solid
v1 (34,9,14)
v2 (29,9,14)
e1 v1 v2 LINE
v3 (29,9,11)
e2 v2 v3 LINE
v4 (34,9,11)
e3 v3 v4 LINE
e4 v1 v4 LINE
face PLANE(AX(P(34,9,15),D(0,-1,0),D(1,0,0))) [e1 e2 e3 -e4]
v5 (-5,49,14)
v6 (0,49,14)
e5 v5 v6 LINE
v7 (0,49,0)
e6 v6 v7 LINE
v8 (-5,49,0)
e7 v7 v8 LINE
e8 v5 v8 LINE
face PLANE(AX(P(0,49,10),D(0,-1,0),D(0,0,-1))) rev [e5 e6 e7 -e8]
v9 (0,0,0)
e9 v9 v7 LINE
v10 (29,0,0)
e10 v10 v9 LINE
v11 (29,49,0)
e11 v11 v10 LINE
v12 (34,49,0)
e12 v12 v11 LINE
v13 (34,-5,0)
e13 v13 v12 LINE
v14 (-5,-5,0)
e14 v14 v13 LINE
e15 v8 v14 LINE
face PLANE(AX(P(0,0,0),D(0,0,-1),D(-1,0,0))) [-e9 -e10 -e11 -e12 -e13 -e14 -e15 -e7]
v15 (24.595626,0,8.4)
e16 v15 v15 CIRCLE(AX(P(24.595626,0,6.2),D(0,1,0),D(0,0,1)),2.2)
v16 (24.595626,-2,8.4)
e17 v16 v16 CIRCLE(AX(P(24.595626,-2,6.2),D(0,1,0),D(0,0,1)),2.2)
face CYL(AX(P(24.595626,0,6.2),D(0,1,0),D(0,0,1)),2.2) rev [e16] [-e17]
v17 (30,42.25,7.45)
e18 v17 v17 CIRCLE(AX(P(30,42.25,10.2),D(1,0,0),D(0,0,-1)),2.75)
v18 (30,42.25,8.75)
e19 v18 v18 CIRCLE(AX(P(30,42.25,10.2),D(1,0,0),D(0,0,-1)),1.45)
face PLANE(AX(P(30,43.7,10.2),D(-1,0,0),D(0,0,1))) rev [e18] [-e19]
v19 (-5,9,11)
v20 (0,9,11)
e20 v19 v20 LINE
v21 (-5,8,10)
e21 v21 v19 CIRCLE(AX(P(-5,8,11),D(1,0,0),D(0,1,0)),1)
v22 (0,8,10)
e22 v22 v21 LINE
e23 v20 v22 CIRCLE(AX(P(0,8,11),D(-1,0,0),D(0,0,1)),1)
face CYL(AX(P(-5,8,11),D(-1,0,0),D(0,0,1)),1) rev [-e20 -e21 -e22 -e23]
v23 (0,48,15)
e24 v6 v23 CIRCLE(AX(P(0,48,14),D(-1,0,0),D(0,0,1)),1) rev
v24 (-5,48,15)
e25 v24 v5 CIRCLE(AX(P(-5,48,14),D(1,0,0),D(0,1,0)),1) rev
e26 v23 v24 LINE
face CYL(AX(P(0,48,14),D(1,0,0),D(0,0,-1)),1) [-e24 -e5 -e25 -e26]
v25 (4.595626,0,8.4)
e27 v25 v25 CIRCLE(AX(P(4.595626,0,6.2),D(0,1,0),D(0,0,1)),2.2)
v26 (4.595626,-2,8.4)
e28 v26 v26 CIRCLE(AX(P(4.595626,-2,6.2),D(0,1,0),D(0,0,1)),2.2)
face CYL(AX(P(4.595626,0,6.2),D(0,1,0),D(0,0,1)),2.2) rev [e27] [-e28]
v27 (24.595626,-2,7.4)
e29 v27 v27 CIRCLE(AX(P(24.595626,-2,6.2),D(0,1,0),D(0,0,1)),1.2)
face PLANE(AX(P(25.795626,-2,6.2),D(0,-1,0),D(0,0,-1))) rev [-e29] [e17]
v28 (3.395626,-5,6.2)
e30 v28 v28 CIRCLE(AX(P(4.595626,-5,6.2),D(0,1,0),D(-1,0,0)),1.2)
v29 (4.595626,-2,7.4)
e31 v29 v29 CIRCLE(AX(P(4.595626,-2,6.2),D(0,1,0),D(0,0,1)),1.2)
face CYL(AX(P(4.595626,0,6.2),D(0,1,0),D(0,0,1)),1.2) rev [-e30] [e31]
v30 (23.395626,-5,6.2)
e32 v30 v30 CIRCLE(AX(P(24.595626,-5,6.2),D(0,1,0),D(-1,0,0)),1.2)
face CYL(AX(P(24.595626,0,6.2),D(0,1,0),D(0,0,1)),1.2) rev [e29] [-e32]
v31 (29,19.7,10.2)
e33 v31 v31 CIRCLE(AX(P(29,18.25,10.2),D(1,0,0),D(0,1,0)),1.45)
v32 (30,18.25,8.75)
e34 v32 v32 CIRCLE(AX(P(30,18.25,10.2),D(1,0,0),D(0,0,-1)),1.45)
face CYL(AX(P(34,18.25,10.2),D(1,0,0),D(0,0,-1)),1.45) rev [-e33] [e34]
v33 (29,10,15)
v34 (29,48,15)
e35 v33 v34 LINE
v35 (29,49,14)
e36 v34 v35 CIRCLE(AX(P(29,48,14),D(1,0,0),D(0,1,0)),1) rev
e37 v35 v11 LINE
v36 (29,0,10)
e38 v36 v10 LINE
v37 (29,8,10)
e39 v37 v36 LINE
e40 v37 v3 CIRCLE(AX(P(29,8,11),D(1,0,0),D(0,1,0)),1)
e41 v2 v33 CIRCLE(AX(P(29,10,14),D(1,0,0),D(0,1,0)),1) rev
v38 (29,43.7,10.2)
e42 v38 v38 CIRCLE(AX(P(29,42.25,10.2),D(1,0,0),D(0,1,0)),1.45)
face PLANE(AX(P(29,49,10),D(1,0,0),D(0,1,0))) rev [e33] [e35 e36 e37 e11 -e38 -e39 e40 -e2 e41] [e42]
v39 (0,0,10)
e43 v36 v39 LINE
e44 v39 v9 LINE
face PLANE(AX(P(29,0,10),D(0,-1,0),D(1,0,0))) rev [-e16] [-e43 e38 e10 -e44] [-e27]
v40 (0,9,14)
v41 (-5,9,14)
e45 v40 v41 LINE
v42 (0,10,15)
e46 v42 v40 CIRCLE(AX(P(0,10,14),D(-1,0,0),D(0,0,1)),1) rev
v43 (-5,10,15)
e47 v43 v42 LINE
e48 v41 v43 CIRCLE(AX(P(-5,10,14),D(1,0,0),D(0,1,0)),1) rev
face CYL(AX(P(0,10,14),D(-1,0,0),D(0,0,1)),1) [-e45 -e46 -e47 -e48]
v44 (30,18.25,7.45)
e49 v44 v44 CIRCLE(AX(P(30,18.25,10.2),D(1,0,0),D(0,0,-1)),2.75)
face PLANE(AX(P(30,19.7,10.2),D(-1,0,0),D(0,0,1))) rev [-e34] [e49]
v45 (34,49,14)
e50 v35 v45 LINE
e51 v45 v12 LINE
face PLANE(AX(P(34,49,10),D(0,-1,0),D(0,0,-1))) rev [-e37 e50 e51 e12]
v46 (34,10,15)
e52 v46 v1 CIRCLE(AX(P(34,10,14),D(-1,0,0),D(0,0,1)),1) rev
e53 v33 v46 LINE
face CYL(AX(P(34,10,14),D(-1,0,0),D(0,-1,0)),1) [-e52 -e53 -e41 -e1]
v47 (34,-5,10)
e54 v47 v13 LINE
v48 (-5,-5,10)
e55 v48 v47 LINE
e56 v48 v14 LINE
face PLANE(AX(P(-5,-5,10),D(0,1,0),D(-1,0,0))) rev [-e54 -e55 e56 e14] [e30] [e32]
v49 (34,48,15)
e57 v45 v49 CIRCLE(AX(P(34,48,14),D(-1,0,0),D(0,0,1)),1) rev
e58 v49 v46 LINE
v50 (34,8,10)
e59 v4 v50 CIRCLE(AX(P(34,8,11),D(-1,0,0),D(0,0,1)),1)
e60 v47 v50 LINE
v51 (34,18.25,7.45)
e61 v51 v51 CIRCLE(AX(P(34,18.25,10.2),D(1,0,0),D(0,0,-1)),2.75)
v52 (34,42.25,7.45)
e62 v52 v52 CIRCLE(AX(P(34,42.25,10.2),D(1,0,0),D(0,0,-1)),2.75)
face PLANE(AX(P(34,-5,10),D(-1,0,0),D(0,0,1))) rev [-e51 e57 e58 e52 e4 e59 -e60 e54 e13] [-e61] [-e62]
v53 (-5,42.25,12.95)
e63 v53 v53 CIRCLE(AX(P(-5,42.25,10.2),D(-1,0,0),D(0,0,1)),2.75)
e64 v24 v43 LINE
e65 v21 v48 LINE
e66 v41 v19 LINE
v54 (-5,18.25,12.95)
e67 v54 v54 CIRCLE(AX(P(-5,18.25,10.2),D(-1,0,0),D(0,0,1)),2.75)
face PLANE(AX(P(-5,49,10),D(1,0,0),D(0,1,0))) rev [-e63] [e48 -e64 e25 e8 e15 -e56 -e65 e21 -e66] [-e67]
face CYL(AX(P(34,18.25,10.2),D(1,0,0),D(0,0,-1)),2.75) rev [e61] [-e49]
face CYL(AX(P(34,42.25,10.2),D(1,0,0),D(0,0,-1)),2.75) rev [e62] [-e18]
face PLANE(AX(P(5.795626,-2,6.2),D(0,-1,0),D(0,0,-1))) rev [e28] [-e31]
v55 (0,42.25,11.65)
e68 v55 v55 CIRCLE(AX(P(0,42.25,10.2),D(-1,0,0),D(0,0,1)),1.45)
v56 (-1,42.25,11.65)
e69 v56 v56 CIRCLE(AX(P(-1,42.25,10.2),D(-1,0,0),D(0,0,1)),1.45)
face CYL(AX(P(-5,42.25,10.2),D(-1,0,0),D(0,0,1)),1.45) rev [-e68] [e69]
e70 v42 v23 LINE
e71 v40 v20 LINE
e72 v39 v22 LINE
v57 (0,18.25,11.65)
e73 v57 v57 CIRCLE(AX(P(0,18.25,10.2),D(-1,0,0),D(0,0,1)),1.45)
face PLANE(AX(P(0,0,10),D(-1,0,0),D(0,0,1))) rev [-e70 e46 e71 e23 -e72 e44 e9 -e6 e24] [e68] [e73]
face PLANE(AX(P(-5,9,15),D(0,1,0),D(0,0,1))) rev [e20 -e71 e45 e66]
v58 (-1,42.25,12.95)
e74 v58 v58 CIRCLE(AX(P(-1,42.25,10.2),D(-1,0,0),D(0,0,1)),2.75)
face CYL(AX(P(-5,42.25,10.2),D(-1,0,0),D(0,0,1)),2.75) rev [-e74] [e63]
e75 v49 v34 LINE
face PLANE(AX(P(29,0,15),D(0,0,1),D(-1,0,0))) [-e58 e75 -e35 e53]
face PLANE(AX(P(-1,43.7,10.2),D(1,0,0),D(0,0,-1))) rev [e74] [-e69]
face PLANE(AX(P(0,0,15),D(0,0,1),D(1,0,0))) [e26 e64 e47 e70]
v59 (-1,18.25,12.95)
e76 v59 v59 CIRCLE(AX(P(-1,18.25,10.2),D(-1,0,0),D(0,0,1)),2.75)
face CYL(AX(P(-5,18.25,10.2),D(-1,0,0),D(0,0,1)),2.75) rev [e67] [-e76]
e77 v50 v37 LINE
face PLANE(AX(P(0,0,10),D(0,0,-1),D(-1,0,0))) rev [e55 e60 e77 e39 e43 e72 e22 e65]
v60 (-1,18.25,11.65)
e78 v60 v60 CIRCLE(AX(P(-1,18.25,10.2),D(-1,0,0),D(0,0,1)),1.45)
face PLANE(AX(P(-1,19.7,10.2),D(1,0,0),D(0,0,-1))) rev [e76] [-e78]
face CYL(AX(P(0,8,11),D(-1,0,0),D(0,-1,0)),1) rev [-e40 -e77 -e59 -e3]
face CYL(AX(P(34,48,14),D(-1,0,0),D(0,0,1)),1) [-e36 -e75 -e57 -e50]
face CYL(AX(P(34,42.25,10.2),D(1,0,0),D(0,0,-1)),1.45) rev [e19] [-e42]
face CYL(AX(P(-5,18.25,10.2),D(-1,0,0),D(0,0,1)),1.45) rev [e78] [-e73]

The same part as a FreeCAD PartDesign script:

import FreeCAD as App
import Part
import Sketcher
from FreeCAD import Vector
Q = App.Units.Quantity


def edges_at(feature, points):
    """Names of the edges that pass closest to the given points."""
    edges = feature.Shape.Edges
    near = lambda p: min(range(len(edges)), key=lambda i: edges[i].distToShape(Part.Vertex(*p))[0])
    return sorted({f"Edge{near(p) + 1}" for p in points})

doc = App.newDocument("Part")
body = doc.addObject("PartDesign::Body", "Body")

sketch1 = body.newObject("Sketcher::SketchObject", "Sketch")
sketch1.AttachmentSupport = (doc.getObject("XY_Plane"), [""])
sketch1.MapMode = "FlatFace"
sketch1.addGeometry(Part.LineSegment(Vector(0, 0, 0), Vector(0, 49, 0)), False)
sketch1.addGeometry(Part.LineSegment(Vector(0, 49, 0), Vector(-5, 49, 0)), False)
sketch1.addGeometry(Part.LineSegment(Vector(-5, 49, 0), Vector(-5, -5, 0)), False)
sketch1.addGeometry(Part.LineSegment(Vector(-5, -5, 0), Vector(34, -5, 0)), False)
sketch1.addGeometry(Part.LineSegment(Vector(34, -5, 0), Vector(34, 49, 0)), False)
sketch1.addGeometry(Part.LineSegment(Vector(34, 49, 0), Vector(29, 49, 0)), False)
sketch1.addGeometry(Part.LineSegment(Vector(29, 49, 0), Vector(29, 0, 0)), False)
sketch1.addGeometry(Part.LineSegment(Vector(29, 0, 0), Vector(0, 0, 0)), False)
sketch1.addConstraint(Sketcher.Constraint("Coincident", 0, 2, 1, 1))
sketch1.addConstraint(Sketcher.Constraint("Coincident", 1, 2, 2, 1))
sketch1.addConstraint(Sketcher.Constraint("Coincident", 2, 2, 3, 1))
sketch1.addConstraint(Sketcher.Constraint("Coincident", 3, 2, 4, 1))
sketch1.addConstraint(Sketcher.Constraint("Coincident", 4, 2, 5, 1))
sketch1.addConstraint(Sketcher.Constraint("Coincident", 5, 2, 6, 1))
sketch1.addConstraint(Sketcher.Constraint("Coincident", 6, 2, 7, 1))
sketch1.addConstraint(Sketcher.Constraint("Coincident", 7, 2, 0, 1))
sketch1.addConstraint(Sketcher.Constraint("Vertical", 0))
sketch1.addConstraint(Sketcher.Constraint("Horizontal", 1))
sketch1.addConstraint(Sketcher.Constraint("Vertical", 2))
sketch1.addConstraint(Sketcher.Constraint("Horizontal", 3))
sketch1.addConstraint(Sketcher.Constraint("Vertical", 4))
sketch1.addConstraint(Sketcher.Constraint("Horizontal", 5))
sketch1.addConstraint(Sketcher.Constraint("Vertical", 6))
sketch1.addConstraint(Sketcher.Constraint("Horizontal", 7))
sketch1.addConstraint(Sketcher.Constraint("Coincident", 7, 2, -1, 1))
sketch1.addConstraint(Sketcher.Constraint("Horizontal", 1, 2, 4, 2))
sketch1.addConstraint(Sketcher.Constraint("Equal", 1, 5))
sketch1.addConstraint(Sketcher.Constraint("DistanceX", 1, 2, 1, 1, Q("5 mm")))
sketch1.addConstraint(Sketcher.Constraint("DistanceX", 3, 1, 3, 2, Q("39 mm")))
sketch1.addConstraint(Sketcher.Constraint("DistanceY", 0, 1, 0, 2, Q("49 mm")))
sketch1.addConstraint(Sketcher.Constraint("DistanceY", 2, 2, 2, 1, Q("54 mm")))
pad1 = body.newObject("PartDesign::Pad", "Pad")
pad1.Profile = sketch1
pad1.Length = 10

sketch2 = body.newObject("Sketcher::SketchObject", "Sketch001")
sketch2.AttachmentSupport = (doc.getObject("XY_Plane"), [""])
sketch2.MapMode = "FlatFace"
sketch2.AttachmentOffset = App.Placement(Vector(0, 0, 10), App.Rotation())
sketch2.addGeometry(Part.LineSegment(Vector(-5, 49, 0), Vector(-5, 9, 0)), False)
sketch2.addGeometry(Part.LineSegment(Vector(-5, 9, 0), Vector(0, 9, 0)), False)
sketch2.addGeometry(Part.LineSegment(Vector(0, 9, 0), Vector(0, 49, 0)), False)
sketch2.addGeometry(Part.LineSegment(Vector(0, 49, 0), Vector(-5, 49, 0)), False)
sketch2.addConstraint(Sketcher.Constraint("Coincident", 0, 2, 1, 1))
sketch2.addConstraint(Sketcher.Constraint("Coincident", 1, 2, 2, 1))
sketch2.addConstraint(Sketcher.Constraint("Coincident", 2, 2, 3, 1))
sketch2.addConstraint(Sketcher.Constraint("Coincident", 3, 2, 0, 1))
sketch2.addConstraint(Sketcher.Constraint("Vertical", 0))
sketch2.addConstraint(Sketcher.Constraint("Horizontal", 1))
sketch2.addConstraint(Sketcher.Constraint("Vertical", 2))
sketch2.addConstraint(Sketcher.Constraint("Horizontal", 3))
sketch2.addConstraint(Sketcher.Constraint("PointOnObject", 1, 2, -2))
sketch2.addConstraint(Sketcher.Constraint("DistanceX", 1, 1, 1, 2, Q("5 mm")))
sketch2.addConstraint(Sketcher.Constraint("DistanceY", 0, 2, 0, 1, Q("40 mm")))
sketch2.addConstraint(Sketcher.Constraint("DistanceY", -1, 1, 0, 2, Q("9 mm")))
pad2 = body.newObject("PartDesign::Pad", "Pad001")
pad2.Profile = sketch2
pad2.Length = 5
doc.recompute()

datumplane = body.newObject("PartDesign::Plane", "DatumPlane")
datumplane.AttachmentSupport = (doc.getObject("YZ_Plane"), [""])
datumplane.MapMode = "FlatFace"
datumplane.AttachmentOffset = App.Placement(Vector(0, 0, 14.5), App.Rotation())
mirrored = body.newObject("PartDesign::Mirrored", "Mirrored")
mirrored.Originals = [pad2]
mirrored.MirrorPlane = (datumplane, [""])
body.Tip = mirrored

sketch3 = body.newObject("Sketcher::SketchObject", "Sketch002")
sketch3.AttachmentSupport = (doc.getObject("XZ_Plane"), [""])
sketch3.MapMode = "FlatFace"
sketch3.addGeometry(Part.Circle(Vector(24.6, 6.2, 0), Vector(0, 0, 1), 1.2), False)
sketch3.addGeometry(Part.Circle(Vector(4.6, 6.2, 0), Vector(0, 0, 1), 1.2), False)
sketch3.addConstraint(Sketcher.Constraint("Equal", 0, 1))
sketch3.addConstraint(Sketcher.Constraint("Horizontal", 0, 3, 1, 3))
sketch3.addConstraint(Sketcher.Constraint("Diameter", 0, Q("2.4 mm")))
sketch3.addConstraint(Sketcher.Constraint("DistanceX", 1, 3, 0, 3, Q("20 mm")))
sketch3.addConstraint(Sketcher.Constraint("DistanceY", -1, 1, 0, 3, Q("6.2 mm")))
sketch3.addConstraint(Sketcher.Constraint("DistanceX", -1, 1, 0, 3, Q("24.595626 mm")))
doc.recompute()
hole = body.newObject("PartDesign::Hole", "Hole")
hole.Profile = sketch3
hole.ThreadType = "None"
hole.Diameter = 2.4
hole.DepthType = "ThroughAll"
hole.HoleCutType = "Counterbore"
hole.HoleCutDiameter = 4.4
hole.HoleCutDepth = 2
hole.Reversed = True

sketch4 = body.newObject("Sketcher::SketchObject", "Sketch003")
sketch4.AttachmentSupport = (doc.getObject("YZ_Plane"), [""])
sketch4.MapMode = "FlatFace"
sketch4.AttachmentOffset = App.Placement(Vector(0, 0, 34), App.Rotation())
sketch4.addGeometry(Part.Circle(Vector(42.2, 10.2, 0), Vector(0, 0, 1), 1.4), False)
sketch4.addGeometry(Part.Circle(Vector(18.2, 10.2, 0), Vector(0, 0, 1), 1.4), False)
sketch4.addConstraint(Sketcher.Constraint("Equal", 0, 1))
sketch4.addConstraint(Sketcher.Constraint("Horizontal", 0, 3, 1, 3))
sketch4.addConstraint(Sketcher.Constraint("Diameter", 0, Q("2.9 mm")))
sketch4.addConstraint(Sketcher.Constraint("DistanceX", 1, 3, 0, 3, Q("24 mm")))
sketch4.addConstraint(Sketcher.Constraint("DistanceY", -1, 1, 0, 3, Q("10.2 mm")))
sketch4.addConstraint(Sketcher.Constraint("DistanceX", -1, 1, 0, 3, Q("42.25 mm")))
doc.recompute()
hole2 = body.newObject("PartDesign::Hole", "Hole001")
hole2.Profile = sketch4
hole2.ThreadType = "None"
hole2.Diameter = 2.9
hole2.DepthType = "Dimension"
hole2.Depth = 5
hole2.DrillPoint = "Flat"
hole2.HoleCutType = "Counterbore"
hole2.HoleCutDiameter = 5.5
hole2.HoleCutDepth = 4

sketch5 = body.newObject("Sketcher::SketchObject", "Sketch004")
sketch5.AttachmentSupport = (doc.getObject("YZ_Plane"), [""])
sketch5.MapMode = "FlatFace"
sketch5.AttachmentOffset = App.Placement(Vector(0, 0, -5), App.Rotation())
sketch5.addGeometry(Part.Circle(Vector(42.2, 10.2, 0), Vector(0, 0, 1), 1.4), False)
sketch5.addGeometry(Part.Circle(Vector(18.2, 10.2, 0), Vector(0, 0, 1), 1.4), False)
sketch5.addConstraint(Sketcher.Constraint("Equal", 0, 1))
sketch5.addConstraint(Sketcher.Constraint("Horizontal", 0, 3, 1, 3))
sketch5.addConstraint(Sketcher.Constraint("Diameter", 0, Q("2.9 mm")))
sketch5.addConstraint(Sketcher.Constraint("DistanceX", 1, 3, 0, 3, Q("24 mm")))
sketch5.addConstraint(Sketcher.Constraint("DistanceY", -1, 1, 0, 3, Q("10.2 mm")))
sketch5.addConstraint(Sketcher.Constraint("DistanceX", -1, 1, 0, 3, Q("42.25 mm")))
doc.recompute()
hole3 = body.newObject("PartDesign::Hole", "Hole002")
hole3.Profile = sketch5
hole3.ThreadType = "None"
hole3.Diameter = 2.9
hole3.DepthType = "ThroughAll"
hole3.HoleCutType = "Counterbore"
hole3.HoleCutDiameter = 5.5
hole3.HoleCutDepth = 4
hole3.Reversed = True
doc.recompute()

fillet = body.newObject("PartDesign::Fillet", "Fillet")
fillet.Base = (hole3, edges_at(hole3, [
    (-2.5, 9, 10),
    (-2.5, 9, 15),
    (-2.5, 49, 15),
    (31.5, 49, 15),
    (31.5, 9, 15),
    (31.5, 9, 10),
]))
fillet.Radius = 1

doc.recompute()
